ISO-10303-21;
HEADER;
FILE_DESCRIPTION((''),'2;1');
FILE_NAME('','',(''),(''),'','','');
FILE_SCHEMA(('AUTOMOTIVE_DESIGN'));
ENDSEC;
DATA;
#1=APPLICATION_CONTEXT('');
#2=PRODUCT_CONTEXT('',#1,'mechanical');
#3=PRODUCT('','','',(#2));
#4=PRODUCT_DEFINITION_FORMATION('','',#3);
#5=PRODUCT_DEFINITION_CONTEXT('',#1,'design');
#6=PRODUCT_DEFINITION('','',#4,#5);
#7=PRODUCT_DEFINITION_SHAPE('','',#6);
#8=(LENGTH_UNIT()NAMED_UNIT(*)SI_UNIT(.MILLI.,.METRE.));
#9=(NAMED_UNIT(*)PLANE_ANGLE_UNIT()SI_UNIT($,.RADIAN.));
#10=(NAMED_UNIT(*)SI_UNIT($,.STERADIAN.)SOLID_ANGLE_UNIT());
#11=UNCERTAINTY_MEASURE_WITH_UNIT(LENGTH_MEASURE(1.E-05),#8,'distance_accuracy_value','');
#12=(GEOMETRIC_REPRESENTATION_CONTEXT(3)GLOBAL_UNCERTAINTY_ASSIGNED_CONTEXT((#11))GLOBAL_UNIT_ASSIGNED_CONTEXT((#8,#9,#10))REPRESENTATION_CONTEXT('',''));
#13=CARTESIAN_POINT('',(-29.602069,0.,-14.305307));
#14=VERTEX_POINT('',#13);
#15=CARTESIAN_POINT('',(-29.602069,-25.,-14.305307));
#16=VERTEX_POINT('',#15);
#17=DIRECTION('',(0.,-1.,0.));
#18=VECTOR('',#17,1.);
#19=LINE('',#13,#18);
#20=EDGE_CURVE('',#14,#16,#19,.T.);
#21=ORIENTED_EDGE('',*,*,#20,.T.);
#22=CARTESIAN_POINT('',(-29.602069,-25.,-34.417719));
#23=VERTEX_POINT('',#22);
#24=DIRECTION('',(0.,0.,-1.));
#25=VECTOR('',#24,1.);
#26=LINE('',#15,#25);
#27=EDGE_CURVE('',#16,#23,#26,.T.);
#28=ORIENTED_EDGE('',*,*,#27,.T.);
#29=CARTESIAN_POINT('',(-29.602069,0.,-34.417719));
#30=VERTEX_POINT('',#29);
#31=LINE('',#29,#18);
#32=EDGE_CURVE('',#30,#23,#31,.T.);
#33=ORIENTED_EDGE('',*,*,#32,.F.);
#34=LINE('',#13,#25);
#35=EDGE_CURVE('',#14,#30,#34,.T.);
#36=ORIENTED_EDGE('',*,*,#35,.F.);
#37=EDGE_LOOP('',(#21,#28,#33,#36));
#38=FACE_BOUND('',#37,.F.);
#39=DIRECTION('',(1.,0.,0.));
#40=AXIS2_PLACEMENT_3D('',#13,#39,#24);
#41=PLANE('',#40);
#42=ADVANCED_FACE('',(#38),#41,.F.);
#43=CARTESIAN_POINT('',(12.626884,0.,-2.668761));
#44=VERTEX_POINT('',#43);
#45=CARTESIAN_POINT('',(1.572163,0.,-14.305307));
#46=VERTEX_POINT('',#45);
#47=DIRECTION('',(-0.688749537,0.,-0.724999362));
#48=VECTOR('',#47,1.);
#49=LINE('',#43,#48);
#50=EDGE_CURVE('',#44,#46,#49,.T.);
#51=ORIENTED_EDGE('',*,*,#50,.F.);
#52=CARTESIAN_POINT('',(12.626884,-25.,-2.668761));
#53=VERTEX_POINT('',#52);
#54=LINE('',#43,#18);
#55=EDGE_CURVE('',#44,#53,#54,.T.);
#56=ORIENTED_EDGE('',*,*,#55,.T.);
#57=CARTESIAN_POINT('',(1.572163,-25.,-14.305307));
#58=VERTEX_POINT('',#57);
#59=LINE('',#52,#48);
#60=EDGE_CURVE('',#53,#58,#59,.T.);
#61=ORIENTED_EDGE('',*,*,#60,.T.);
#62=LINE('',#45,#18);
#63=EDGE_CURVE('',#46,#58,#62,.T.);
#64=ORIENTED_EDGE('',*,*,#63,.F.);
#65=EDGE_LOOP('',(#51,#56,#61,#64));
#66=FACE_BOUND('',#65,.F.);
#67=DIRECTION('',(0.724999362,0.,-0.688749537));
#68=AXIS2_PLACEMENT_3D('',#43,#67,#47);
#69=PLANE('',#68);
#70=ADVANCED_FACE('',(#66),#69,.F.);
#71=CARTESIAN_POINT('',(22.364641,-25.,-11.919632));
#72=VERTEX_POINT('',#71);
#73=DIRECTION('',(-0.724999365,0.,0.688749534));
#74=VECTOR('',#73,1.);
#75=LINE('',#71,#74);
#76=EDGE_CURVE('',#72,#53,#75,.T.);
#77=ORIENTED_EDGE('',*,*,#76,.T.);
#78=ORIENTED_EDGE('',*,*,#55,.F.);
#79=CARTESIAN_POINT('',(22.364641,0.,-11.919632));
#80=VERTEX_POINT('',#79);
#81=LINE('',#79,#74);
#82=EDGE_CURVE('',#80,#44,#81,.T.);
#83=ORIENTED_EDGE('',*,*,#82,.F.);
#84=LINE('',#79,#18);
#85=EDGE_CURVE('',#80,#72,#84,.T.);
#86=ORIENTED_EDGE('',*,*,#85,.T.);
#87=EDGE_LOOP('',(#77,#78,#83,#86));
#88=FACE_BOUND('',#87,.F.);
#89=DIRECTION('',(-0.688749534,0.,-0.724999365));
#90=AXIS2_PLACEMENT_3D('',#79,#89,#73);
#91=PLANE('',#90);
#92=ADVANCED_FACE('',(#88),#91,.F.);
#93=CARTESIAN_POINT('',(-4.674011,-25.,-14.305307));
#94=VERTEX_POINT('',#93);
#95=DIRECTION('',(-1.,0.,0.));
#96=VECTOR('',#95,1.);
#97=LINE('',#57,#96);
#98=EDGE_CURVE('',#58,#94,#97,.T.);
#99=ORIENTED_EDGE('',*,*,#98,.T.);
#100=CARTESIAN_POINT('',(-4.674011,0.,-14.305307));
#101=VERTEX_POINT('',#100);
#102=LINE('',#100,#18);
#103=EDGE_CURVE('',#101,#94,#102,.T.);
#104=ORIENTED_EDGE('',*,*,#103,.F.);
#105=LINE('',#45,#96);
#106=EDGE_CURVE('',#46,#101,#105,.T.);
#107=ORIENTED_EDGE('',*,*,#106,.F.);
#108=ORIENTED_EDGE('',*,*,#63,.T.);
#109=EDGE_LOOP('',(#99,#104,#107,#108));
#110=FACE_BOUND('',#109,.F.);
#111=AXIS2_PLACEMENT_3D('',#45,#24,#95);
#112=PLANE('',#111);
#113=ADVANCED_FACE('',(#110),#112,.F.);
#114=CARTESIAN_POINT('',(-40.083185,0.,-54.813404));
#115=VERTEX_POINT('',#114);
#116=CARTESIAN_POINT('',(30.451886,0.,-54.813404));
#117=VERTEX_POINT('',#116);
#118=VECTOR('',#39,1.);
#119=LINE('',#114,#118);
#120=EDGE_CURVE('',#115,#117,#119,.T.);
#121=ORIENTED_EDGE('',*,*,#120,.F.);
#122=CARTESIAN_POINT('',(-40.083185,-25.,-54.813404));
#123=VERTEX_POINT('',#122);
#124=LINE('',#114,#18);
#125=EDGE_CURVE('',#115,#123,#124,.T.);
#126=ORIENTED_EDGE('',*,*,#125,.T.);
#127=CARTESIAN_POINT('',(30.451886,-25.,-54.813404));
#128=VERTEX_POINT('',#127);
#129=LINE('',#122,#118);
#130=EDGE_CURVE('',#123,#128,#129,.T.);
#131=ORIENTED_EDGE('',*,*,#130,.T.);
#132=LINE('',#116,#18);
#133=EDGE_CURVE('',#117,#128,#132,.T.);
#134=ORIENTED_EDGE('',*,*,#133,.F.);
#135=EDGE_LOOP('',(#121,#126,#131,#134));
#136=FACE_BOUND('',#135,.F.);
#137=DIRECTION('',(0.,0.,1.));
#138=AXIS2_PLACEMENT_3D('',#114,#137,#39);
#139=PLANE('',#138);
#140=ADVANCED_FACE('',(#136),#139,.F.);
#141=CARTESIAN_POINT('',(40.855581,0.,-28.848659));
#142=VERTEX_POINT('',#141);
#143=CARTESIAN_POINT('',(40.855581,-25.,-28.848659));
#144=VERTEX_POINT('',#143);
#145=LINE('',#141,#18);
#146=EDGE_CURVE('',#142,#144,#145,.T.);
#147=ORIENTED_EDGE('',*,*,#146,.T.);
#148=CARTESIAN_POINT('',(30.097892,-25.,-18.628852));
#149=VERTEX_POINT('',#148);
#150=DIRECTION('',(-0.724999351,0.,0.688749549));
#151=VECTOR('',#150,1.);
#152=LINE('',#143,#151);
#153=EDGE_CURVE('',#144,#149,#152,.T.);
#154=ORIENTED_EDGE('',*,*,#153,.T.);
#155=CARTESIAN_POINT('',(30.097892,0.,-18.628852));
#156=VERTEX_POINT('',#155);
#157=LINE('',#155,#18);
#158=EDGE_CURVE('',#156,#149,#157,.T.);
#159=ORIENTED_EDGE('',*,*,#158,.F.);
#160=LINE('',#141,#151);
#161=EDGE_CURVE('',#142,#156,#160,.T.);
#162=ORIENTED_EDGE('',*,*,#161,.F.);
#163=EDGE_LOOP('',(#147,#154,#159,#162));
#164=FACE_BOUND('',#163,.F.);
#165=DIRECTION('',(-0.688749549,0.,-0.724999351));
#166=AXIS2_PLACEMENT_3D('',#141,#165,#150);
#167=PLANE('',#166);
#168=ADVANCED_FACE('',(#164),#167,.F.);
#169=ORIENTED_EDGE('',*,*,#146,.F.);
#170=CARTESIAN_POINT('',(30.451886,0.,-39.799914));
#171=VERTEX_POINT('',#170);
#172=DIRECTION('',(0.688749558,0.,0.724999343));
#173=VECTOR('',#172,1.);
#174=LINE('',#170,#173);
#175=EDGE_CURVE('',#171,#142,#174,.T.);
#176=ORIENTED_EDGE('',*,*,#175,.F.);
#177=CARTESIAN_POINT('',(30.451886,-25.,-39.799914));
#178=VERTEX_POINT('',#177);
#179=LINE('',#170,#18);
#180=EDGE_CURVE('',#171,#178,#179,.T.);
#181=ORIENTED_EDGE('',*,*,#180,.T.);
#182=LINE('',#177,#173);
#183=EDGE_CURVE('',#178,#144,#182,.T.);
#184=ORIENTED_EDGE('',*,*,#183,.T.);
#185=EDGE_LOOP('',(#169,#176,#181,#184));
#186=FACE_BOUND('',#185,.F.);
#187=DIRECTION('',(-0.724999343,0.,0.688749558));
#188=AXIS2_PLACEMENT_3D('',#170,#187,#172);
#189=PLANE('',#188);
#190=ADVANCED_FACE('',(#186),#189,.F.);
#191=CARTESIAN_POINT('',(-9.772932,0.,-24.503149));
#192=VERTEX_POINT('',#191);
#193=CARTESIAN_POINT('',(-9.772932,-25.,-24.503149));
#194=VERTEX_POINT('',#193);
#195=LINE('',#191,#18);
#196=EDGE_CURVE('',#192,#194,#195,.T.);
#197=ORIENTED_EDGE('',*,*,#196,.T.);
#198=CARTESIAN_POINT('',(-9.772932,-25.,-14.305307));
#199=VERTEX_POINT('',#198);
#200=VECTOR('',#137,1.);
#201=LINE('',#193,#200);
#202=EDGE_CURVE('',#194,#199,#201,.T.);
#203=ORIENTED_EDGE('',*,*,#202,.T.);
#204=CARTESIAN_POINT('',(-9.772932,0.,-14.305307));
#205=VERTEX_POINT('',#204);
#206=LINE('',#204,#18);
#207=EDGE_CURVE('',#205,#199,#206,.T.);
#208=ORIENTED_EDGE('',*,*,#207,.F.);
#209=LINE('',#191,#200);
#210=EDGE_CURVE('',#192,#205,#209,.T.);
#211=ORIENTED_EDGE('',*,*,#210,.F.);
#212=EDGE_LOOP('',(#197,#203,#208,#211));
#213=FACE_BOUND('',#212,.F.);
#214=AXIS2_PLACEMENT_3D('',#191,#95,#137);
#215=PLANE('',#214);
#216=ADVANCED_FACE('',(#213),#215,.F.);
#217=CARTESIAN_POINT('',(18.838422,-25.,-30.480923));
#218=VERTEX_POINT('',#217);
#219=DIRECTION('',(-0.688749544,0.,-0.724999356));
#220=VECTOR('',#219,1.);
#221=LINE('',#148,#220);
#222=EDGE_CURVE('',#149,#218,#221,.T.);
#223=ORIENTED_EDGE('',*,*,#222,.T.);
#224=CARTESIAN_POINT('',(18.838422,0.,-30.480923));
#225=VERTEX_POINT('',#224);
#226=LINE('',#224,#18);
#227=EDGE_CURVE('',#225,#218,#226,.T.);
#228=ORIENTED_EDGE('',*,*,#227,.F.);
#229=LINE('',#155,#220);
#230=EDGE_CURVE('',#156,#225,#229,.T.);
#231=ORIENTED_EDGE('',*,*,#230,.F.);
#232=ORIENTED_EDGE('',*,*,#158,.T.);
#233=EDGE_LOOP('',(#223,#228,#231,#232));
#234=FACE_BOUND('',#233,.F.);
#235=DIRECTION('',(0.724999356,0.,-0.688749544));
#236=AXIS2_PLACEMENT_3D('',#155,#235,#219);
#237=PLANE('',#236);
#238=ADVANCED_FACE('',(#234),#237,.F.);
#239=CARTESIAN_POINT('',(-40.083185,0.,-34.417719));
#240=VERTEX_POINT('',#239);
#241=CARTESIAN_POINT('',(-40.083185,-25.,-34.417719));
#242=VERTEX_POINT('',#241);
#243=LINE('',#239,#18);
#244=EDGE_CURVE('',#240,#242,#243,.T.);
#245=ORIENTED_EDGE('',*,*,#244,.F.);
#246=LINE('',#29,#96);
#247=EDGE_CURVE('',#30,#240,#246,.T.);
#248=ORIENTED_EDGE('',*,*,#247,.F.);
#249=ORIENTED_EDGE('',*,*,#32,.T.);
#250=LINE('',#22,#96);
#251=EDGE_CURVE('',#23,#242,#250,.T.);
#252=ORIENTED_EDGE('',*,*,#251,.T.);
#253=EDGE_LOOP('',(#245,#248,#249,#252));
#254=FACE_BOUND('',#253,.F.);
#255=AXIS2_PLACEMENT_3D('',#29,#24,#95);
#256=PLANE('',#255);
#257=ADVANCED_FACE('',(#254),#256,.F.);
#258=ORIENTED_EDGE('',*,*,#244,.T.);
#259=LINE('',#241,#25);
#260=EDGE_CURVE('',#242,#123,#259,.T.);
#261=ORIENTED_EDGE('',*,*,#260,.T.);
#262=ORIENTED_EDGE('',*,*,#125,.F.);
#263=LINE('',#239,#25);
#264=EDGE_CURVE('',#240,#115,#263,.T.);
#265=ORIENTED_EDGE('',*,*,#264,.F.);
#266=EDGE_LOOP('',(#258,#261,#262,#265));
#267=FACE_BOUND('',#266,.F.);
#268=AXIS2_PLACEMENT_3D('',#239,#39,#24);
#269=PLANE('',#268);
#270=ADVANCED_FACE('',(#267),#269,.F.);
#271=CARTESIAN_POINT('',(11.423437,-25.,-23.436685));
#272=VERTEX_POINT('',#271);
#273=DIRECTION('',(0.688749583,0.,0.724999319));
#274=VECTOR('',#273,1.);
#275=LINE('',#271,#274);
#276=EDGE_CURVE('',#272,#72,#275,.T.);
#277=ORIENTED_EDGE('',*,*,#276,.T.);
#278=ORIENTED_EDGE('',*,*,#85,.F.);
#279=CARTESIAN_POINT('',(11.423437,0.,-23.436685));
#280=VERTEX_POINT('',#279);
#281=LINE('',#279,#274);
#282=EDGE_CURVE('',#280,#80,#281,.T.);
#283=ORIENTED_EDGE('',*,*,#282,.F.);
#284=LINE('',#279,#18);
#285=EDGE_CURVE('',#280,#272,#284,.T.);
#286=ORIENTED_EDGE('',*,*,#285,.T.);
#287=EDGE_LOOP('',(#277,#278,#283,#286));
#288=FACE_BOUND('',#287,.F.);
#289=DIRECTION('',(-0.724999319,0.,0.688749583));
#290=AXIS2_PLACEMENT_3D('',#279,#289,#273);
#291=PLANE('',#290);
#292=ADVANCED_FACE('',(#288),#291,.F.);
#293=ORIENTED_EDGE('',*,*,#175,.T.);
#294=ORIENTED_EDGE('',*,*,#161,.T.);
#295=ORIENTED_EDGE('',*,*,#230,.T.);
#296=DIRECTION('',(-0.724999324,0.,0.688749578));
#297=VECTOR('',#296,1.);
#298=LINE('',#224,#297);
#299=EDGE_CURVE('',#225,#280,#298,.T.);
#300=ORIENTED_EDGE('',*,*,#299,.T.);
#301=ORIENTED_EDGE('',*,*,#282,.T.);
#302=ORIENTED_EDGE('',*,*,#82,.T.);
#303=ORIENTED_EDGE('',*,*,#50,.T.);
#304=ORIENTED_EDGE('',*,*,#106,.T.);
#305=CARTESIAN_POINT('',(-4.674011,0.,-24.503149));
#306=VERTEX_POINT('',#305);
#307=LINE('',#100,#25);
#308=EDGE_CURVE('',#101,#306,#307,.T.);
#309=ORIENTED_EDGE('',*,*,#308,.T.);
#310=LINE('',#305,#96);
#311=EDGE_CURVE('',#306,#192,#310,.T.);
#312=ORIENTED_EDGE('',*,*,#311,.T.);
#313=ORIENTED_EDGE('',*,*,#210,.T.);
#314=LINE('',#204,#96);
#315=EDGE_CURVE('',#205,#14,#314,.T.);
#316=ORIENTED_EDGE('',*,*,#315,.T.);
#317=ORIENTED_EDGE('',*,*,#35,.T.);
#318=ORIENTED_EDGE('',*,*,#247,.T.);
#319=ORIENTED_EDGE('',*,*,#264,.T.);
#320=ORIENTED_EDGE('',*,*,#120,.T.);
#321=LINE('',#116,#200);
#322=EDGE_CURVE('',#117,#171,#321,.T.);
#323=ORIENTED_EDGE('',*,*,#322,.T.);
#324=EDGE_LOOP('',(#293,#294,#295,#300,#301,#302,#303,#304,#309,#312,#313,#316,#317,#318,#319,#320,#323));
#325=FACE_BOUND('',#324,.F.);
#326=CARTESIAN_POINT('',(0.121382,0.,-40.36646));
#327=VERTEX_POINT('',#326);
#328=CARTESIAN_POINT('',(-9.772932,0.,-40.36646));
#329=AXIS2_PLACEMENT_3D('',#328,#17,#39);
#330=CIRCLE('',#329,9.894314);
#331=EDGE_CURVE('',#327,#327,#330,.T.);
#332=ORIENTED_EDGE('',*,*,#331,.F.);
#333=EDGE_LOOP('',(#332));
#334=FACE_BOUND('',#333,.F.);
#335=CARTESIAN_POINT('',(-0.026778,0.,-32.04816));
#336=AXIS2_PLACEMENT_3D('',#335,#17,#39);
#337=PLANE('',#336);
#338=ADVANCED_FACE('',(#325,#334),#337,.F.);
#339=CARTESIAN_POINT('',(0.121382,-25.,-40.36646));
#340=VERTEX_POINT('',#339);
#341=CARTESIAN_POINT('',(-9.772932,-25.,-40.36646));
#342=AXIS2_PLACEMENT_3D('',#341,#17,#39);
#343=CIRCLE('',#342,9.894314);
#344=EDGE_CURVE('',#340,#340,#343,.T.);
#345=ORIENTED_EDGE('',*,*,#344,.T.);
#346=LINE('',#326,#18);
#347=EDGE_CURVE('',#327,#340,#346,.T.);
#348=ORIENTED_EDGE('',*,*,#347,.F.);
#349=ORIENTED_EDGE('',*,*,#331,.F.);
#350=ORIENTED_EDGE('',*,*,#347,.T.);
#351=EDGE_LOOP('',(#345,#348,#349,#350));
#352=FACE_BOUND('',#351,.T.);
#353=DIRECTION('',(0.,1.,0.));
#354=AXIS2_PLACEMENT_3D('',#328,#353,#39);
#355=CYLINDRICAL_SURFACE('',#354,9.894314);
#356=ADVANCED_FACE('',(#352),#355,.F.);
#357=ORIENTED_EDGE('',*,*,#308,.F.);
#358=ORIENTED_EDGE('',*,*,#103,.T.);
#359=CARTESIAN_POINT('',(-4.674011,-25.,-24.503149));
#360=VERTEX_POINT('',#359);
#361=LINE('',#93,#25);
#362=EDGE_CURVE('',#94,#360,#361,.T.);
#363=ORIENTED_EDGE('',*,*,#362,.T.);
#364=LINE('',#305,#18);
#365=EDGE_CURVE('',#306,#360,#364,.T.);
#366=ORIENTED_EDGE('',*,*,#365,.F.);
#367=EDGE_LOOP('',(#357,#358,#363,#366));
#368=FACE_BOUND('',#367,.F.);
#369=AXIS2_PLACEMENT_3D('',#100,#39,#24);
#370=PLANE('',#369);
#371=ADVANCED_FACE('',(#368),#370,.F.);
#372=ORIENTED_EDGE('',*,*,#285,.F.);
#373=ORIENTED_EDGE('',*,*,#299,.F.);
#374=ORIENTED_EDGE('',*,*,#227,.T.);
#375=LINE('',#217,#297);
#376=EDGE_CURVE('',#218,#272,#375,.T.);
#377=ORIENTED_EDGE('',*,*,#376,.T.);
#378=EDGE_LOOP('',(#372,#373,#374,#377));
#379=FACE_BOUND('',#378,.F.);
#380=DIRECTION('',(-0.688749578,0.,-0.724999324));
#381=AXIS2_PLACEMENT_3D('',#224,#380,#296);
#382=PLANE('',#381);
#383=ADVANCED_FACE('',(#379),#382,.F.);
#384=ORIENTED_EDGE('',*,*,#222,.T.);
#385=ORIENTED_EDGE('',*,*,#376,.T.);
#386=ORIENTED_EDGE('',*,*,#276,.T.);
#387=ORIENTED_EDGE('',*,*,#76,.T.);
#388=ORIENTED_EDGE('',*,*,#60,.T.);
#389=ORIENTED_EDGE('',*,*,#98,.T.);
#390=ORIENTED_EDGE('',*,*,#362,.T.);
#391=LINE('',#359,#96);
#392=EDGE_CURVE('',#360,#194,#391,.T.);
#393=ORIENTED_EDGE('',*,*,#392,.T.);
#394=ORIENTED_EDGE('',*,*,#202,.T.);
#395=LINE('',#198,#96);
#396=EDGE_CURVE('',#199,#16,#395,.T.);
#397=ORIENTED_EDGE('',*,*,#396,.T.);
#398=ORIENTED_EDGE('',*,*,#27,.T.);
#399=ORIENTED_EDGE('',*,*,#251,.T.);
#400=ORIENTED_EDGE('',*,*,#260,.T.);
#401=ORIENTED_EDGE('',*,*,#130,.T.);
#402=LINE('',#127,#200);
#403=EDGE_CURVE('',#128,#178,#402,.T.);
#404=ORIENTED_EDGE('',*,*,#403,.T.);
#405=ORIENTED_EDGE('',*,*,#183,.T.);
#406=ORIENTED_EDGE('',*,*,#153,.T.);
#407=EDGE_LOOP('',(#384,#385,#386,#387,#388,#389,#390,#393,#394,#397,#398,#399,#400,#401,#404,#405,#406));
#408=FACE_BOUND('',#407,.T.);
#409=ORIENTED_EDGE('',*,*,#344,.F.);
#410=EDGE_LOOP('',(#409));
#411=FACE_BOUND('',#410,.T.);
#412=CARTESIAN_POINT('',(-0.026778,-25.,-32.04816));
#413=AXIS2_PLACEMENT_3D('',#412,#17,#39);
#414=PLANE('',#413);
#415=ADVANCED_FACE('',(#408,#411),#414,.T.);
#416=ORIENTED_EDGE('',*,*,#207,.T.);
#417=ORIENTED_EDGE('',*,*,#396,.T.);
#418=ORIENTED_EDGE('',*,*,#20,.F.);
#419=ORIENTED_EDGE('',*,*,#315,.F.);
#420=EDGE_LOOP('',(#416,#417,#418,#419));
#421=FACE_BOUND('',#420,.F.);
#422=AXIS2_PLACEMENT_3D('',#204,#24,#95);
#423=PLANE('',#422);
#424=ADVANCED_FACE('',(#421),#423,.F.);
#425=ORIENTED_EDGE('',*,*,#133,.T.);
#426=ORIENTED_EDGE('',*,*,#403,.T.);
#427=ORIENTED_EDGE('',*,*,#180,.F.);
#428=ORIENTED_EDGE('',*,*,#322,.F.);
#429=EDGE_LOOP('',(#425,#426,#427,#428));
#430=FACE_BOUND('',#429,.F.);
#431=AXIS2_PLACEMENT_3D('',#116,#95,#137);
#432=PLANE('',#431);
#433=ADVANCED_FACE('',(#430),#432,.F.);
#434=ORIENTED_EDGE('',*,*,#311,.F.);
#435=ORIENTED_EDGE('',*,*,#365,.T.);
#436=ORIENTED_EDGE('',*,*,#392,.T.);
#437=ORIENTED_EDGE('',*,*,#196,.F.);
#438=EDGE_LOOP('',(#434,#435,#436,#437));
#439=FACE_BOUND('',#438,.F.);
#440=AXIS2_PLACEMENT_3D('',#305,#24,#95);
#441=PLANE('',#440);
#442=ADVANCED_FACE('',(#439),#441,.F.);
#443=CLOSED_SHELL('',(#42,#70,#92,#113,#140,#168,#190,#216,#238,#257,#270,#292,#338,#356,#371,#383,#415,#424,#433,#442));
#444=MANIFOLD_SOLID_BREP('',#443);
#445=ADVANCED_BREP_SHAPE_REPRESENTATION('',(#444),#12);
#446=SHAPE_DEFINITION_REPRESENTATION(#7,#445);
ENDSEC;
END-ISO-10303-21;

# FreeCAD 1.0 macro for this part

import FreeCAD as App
import Part
import Sketcher
from FreeCAD import Vector
Q = App.Units.Quantity


def add_polygon(sketch, points):
    """Adds a closed chain of lines whose ends are joined by coincident constraints."""
    first, n = sketch.GeometryCount, len(points)
    for a, b in zip(points, points[1:] + points[:1]):
        sketch.addGeometry(Part.LineSegment(App.Vector(*a, 0), App.Vector(*b, 0)), False)
    for i in range(n):
        sketch.addConstraint(Sketcher.Constraint("Coincident", first + i, 2, first + (i + 1) % n, 1))

doc = App.newDocument("Part")
body = doc.addObject("PartDesign::Body", "Body")

# Sketch on XZ plane
sketch1 = body.newObject("Sketcher::SketchObject", "Sketch")
sketch1.AttachmentSupport = (doc.getObject("XZ_Plane"), [""])
sketch1.MapMode = "FlatFace"
add_polygon(sketch1, [(-40.083185, -34.417719), (-40.083185, -54.813404), (30.451886, -54.813404), (30.451886, -39.799914), (40.855581, -28.848659), (30.097892, -18.628852), (18.838422, -30.480923), (11.423437, -23.436685), (22.364641, -11.919632), (12.626884, -2.668761), (1.572163, -14.305307), (-4.674011, -14.305307), (-4.674011, -24.503149), (-9.772932, -24.503149), (-9.772932, -14.305307), (-29.602069, -14.305307), (-29.602069, -34.417719)])  # lines 0-16
sketch1.addGeometry(Part.Circle(Vector(-9.772932, -40.36646, 0), Vector(0, 0, 1), 9.894314), False)  # 17
sketch1.addConstraint([
    Sketcher.Constraint("Vertical", 0),
    Sketcher.Constraint("Horizontal", 1),
    Sketcher.Constraint("Vertical", 2),
    Sketcher.Constraint("Horizontal", 10),
    Sketcher.Constraint("Vertical", 11),
    Sketcher.Constraint("Horizontal", 12),
    Sketcher.Constraint("Vertical", 13),
    Sketcher.Constraint("Horizontal", 14),
    Sketcher.Constraint("Vertical", 15),
    Sketcher.Constraint("Horizontal", 16),
    Sketcher.Constraint("Perpendicular", 3, 4),
    Sketcher.Constraint("Perpendicular", 4, 5),
    Sketcher.Constraint("Perpendicular", 5, 6),
    Sketcher.Constraint("Perpendicular", 6, 7),
    Sketcher.Constraint("Perpendicular", 7, 8),
    Sketcher.Constraint("Perpendicular", 8, 9),
    Sketcher.Constraint("Horizontal", 10, 2, 13, 2),
    Sketcher.Constraint("Vertical", 17, 3, 12, 2),
    Sketcher.Constraint("Diameter", 17, Q("19.788628 mm")),
    Sketcher.Constraint("Distance", 5, Q("16.347699 mm")),
    Sketcher.Constraint("Distance", 8, Q("13.431401 mm")),
    Sketcher.Constraint("DistanceX", 1, 1, 1, 2, Q("70.535071 mm")),
    Sketcher.Constraint("DistanceX", 12, 2, 12, 1, Q("5.098921 mm")),
    Sketcher.Constraint("DistanceY", 2, 1, 2, 2, Q("15.01349 mm")),
    Sketcher.Constraint("DistanceY", 15, 2, 15, 1, Q("20.112412 mm")),
    Sketcher.Constraint("DistanceY", 17, 3, 3, 2, Q("11.517801 mm")),
    Sketcher.Constraint("DistanceY", 3, 2, 8, 2, Q("26.179898 mm")),
    Sketcher.Constraint("DistanceX", 10, 2, 10, 1, Q("6.246174 mm")),
    Sketcher.Constraint("DistanceX", 14, 2, 14, 1, Q("19.829137 mm")),
    Sketcher.Constraint("DistanceX", 16, 2, 16, 1, Q("10.481116 mm")),
    Sketcher.Constraint("DistanceY", 0, 2, 0, 1, Q("20.395685 mm")),
    Sketcher.Constraint("DistanceY", 11, 2, 11, 1, Q("10.197842 mm")),
    Sketcher.Constraint("DistanceY", 17, 3, -1, 1, Q("40.36646 mm")),
    Sketcher.Constraint("DistanceX", -1, 1, 3, 2, Q("40.855581 mm")),
    Sketcher.Constraint("DistanceY", 4, 2, -1, 1, Q("18.628852 mm")),
    Sketcher.Constraint("DistanceX", -1, 1, 7, 2, Q("22.364641 mm")),
    Sketcher.Constraint("DistanceX", 10, 2, -1, 1, Q("4.674011 mm")),
])
pad1 = body.newObject("PartDesign::Pad", "Pad")
pad1.Profile = sketch1
pad1.Length = 25

doc.recompute()
